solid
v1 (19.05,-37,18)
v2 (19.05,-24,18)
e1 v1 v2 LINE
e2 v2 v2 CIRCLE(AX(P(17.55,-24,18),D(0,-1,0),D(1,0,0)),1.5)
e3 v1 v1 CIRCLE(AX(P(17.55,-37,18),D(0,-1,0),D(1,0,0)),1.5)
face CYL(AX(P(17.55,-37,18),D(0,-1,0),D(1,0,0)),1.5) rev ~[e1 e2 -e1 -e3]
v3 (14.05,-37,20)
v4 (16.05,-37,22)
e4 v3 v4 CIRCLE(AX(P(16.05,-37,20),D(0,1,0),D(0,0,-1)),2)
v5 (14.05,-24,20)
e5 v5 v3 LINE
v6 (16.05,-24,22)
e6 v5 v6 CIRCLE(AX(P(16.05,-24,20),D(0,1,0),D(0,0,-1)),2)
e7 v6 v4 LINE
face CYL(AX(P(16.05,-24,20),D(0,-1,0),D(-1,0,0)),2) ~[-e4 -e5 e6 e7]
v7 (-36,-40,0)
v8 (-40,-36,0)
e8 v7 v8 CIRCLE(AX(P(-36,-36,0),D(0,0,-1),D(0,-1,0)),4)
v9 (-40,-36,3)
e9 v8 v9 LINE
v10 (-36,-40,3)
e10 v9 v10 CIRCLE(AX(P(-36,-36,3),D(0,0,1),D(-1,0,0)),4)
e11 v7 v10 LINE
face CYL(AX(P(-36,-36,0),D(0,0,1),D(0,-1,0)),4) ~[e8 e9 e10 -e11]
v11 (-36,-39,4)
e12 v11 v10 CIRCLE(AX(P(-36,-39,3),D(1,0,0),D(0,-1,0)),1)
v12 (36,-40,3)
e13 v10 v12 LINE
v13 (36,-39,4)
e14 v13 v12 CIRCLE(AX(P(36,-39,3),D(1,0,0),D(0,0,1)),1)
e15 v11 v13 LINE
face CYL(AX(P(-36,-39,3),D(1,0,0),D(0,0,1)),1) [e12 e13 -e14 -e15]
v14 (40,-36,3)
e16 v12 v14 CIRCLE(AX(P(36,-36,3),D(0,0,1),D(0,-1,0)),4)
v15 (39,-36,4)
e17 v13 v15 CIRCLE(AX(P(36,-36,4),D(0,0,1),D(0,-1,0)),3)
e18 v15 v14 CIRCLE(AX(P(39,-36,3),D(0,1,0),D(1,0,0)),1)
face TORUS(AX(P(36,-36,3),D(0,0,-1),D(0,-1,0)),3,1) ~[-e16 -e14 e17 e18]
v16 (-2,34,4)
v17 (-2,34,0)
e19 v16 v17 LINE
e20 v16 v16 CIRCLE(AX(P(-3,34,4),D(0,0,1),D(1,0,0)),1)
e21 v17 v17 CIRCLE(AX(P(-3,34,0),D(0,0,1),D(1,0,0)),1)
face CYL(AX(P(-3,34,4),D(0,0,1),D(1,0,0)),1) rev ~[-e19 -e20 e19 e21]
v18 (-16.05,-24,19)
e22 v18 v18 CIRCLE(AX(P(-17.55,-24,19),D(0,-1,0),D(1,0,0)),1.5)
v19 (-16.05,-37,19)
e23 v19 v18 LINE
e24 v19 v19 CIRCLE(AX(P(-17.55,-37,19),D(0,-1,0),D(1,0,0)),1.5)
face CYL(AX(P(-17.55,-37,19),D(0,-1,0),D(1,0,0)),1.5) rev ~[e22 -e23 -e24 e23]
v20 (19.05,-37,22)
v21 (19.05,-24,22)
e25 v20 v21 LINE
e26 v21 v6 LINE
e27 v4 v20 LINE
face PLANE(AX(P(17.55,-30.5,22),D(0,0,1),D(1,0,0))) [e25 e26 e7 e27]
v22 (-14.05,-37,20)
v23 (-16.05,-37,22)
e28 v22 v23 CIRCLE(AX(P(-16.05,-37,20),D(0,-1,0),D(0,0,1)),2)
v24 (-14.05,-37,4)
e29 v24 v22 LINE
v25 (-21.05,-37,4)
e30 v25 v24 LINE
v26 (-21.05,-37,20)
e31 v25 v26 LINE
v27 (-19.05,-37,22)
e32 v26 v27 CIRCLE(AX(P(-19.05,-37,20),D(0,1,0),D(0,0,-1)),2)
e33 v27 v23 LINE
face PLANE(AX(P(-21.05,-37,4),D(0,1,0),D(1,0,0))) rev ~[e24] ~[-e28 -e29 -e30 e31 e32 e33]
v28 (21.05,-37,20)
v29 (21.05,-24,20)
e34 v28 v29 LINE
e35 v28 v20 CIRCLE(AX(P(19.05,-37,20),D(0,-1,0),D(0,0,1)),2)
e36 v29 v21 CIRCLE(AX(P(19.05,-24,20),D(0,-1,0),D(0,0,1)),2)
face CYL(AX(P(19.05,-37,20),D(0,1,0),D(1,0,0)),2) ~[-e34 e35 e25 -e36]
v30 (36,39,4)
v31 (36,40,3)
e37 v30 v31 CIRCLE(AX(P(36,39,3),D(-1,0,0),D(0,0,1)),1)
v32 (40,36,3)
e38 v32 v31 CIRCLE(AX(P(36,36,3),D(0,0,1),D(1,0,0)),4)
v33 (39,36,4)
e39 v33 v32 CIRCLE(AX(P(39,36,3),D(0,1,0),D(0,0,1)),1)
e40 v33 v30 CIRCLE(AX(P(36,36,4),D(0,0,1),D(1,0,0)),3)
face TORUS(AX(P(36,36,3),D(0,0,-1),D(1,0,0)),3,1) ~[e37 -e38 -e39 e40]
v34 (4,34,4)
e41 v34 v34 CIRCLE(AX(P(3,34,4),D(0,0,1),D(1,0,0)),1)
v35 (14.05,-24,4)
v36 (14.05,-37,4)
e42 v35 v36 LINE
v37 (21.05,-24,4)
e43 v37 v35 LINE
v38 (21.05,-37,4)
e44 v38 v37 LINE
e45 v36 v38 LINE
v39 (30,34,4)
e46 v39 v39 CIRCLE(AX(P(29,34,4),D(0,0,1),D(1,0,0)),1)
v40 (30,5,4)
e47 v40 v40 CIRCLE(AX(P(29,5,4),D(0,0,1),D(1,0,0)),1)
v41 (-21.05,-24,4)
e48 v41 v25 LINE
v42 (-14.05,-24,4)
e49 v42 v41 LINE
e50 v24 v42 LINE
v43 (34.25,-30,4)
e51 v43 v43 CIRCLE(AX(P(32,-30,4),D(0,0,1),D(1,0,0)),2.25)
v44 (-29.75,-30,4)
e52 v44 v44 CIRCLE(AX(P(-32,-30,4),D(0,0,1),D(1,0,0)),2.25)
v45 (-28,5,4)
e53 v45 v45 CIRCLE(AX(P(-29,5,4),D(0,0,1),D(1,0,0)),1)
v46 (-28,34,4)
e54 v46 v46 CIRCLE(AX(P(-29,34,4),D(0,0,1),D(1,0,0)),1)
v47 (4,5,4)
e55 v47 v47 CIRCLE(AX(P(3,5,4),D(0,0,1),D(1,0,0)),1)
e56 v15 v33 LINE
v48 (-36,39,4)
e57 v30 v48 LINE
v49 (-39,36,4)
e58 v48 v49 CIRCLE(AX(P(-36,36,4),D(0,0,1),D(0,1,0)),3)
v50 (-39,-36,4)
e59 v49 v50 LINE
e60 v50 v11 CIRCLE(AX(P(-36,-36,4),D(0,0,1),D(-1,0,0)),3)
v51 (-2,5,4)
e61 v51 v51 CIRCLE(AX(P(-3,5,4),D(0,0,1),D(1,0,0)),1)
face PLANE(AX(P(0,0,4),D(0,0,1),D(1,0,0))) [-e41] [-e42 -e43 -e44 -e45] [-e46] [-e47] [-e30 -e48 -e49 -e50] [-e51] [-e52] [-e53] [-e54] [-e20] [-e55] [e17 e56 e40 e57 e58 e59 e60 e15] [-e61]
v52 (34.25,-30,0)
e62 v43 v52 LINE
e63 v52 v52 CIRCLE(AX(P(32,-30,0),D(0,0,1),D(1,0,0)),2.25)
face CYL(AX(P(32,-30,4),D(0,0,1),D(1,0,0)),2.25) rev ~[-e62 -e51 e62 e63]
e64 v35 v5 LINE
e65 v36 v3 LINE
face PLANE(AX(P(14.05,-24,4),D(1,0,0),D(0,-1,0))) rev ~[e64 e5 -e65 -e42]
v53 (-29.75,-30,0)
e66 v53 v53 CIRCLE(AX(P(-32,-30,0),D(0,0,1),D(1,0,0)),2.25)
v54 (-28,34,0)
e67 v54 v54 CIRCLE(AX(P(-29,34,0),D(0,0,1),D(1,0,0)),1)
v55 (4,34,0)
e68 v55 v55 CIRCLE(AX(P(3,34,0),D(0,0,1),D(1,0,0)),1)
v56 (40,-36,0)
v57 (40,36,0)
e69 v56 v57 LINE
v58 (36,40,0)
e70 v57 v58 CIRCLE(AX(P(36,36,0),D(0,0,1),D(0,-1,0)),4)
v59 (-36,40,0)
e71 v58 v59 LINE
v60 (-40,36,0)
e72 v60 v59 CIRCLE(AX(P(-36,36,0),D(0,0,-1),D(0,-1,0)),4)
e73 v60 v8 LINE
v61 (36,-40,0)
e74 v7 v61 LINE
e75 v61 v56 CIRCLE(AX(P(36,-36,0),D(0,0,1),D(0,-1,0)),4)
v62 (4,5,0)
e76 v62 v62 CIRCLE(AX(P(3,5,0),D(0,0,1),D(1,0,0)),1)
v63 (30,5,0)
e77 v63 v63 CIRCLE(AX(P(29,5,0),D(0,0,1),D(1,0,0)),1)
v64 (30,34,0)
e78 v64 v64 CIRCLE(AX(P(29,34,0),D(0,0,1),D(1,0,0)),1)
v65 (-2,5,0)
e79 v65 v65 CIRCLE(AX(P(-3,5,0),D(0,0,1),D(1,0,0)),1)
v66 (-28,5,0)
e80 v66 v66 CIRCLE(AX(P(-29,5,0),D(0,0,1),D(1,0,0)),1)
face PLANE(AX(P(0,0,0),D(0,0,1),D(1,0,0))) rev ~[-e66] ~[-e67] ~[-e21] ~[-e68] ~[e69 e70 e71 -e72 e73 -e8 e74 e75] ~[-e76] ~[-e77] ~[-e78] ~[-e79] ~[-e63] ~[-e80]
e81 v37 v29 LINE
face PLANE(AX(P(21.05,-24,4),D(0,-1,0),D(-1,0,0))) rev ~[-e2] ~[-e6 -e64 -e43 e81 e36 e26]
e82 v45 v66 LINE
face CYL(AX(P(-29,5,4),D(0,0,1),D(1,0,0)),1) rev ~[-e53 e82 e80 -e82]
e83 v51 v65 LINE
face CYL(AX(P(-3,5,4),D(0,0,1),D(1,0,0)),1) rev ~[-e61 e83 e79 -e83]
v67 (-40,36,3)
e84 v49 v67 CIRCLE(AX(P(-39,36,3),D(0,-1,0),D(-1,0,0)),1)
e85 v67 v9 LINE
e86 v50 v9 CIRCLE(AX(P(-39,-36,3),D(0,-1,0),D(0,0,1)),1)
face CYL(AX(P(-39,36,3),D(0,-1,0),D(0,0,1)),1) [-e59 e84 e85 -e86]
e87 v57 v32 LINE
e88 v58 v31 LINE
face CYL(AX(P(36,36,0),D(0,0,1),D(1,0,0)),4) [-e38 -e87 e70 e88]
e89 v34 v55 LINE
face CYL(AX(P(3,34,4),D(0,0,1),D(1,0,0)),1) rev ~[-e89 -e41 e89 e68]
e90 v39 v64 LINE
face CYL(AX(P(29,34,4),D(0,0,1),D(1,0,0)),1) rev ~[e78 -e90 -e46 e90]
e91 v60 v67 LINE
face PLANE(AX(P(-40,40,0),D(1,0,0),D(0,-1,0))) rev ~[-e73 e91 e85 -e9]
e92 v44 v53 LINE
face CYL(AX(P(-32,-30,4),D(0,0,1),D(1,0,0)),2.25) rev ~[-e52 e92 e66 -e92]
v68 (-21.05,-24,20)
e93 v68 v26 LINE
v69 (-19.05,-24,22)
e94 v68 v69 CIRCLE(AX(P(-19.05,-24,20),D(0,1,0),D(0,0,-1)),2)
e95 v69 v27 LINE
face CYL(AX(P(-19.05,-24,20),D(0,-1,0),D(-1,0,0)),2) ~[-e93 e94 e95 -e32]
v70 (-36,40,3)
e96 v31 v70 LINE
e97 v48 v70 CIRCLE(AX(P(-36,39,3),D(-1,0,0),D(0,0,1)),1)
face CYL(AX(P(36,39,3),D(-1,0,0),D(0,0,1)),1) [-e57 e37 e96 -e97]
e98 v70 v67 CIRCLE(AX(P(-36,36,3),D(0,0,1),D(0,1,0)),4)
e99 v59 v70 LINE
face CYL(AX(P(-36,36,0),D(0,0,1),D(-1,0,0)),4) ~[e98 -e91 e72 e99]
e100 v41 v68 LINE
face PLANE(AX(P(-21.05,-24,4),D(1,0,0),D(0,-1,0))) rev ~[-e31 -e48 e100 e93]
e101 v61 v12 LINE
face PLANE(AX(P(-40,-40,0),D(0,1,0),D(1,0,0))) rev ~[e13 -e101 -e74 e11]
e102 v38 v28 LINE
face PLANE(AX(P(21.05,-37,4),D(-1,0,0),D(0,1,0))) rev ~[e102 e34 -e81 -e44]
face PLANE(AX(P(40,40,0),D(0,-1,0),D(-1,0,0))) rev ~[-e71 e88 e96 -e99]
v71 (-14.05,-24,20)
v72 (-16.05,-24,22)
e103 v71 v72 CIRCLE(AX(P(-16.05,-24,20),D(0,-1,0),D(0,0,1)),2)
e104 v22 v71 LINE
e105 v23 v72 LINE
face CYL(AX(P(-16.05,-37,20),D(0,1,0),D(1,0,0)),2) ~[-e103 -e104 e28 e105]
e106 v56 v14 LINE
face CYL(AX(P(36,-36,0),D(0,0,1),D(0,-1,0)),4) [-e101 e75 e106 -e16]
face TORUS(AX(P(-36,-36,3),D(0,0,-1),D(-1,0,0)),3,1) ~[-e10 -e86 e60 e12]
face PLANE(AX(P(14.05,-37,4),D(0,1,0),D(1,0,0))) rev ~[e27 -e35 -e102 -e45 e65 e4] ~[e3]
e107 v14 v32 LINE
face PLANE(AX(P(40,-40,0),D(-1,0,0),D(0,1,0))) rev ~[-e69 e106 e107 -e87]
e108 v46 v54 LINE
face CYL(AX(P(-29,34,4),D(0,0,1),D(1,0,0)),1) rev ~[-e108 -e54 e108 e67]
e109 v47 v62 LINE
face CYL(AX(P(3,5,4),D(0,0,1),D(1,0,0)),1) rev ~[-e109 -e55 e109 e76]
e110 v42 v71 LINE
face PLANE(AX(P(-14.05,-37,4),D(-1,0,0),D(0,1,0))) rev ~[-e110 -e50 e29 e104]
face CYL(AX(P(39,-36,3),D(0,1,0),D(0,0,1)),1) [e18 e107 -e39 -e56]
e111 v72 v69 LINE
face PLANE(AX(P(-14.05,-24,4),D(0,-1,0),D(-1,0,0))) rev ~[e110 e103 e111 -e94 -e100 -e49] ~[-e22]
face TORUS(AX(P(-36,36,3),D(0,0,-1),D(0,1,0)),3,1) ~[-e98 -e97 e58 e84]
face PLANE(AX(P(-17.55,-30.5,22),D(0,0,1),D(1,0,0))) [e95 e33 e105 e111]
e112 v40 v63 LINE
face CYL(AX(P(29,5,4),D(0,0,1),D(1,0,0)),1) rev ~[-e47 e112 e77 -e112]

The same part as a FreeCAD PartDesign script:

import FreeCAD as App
import Part
import Sketcher
Q = App.Units.Quantity


def edges_at(feature, points):
    """Names of the edges that pass closest to the given points."""
    edges = feature.Shape.Edges
    near = lambda p: min(range(len(edges)), key=lambda i: edges[i].distToShape(Part.Vertex(*p))[0])
    return sorted({f"Edge{near(p) + 1}" for p in points})

doc = App.newDocument("Part")
body = doc.addObject("PartDesign::Body", "Body")

# Sketch on XY plane
sketch1 = body.newObject("Sketcher::SketchObject", "Sketch")
sketch1.AttachmentSupport = (doc.getObject("XY_Plane"), [""])
sketch1.MapMode = "FlatFace"
sketch1.addGeometry([
    Part.LineSegment(App.Vector(-40, 40, 0), App.Vector(-40, -40, 0)),
    Part.LineSegment(App.Vector(-40, -40, 0), App.Vector(40, -40, 0)),
    Part.LineSegment(App.Vector(40, -40, 0), App.Vector(40, 40, 0)),
    Part.LineSegment(App.Vector(40, 40, 0), App.Vector(-40, 40, 0)),
], False)
sketch1.addConstraint([
    Sketcher.Constraint("Coincident", 0, 2, 1, 1),
    Sketcher.Constraint("Coincident", 1, 2, 2, 1),
    Sketcher.Constraint("Coincident", 2, 2, 3, 1),
    Sketcher.Constraint("Coincident", 3, 2, 0, 1),
    Sketcher.Constraint("Vertical", 0),
    Sketcher.Constraint("Horizontal", 1),
    Sketcher.Constraint("Vertical", 2),
    Sketcher.Constraint("Horizontal", 3),
    Sketcher.Constraint("Symmetric", 0, 2, 2, 2, -1, 1),
    Sketcher.Constraint("Equal", 3, 0),
    Sketcher.Constraint("DistanceX", 1, 1, 1, 2, Q("80 mm")),
])
pad1 = body.newObject("PartDesign::Pad", "Pad")
pad1.Profile = sketch1
pad1.Length = 4

# Sketch on XY plane
sketch2 = body.newObject("Sketcher::SketchObject", "Sketch001")
sketch2.AttachmentSupport = (doc.getObject("XY_Plane"), [""])
sketch2.MapMode = "FlatFace"
sketch2.AttachmentOffset = App.Placement(App.Vector(0, 0, 4), App.Rotation())
sketch2.addGeometry([
    Part.LineSegment(App.Vector(-21, -37, 0), App.Vector(-14, -37, 0)),  # 0
    Part.LineSegment(App.Vector(-14, -37, 0), App.Vector(-14, -24, 0)),  # 1
    Part.LineSegment(App.Vector(-14, -24, 0), App.Vector(-21, -24, 0)),  # 2
    Part.LineSegment(App.Vector(-21, -24, 0), App.Vector(-21, -37, 0)),  # 3
    Part.LineSegment(App.Vector(21, -24, 0), App.Vector(14, -24, 0)),  # 4
    Part.LineSegment(App.Vector(14, -24, 0), App.Vector(14, -37, 0)),  # 5
    Part.LineSegment(App.Vector(14, -37, 0), App.Vector(21, -37, 0)),  # 6
    Part.LineSegment(App.Vector(21, -37, 0), App.Vector(21, -24, 0)),  # 7
], False)
sketch2.addConstraint([
    Sketcher.Constraint("Coincident", 0, 2, 1, 1),
    Sketcher.Constraint("Coincident", 1, 2, 2, 1),
    Sketcher.Constraint("Coincident", 2, 2, 3, 1),
    Sketcher.Constraint("Coincident", 3, 2, 0, 1),
    Sketcher.Constraint("Coincident", 4, 2, 5, 1),
    Sketcher.Constraint("Coincident", 5, 2, 6, 1),
    Sketcher.Constraint("Coincident", 6, 2, 7, 1),
    Sketcher.Constraint("Coincident", 7, 2, 4, 1),
    Sketcher.Constraint("Horizontal", 0),
    Sketcher.Constraint("Vertical", 1),
    Sketcher.Constraint("Horizontal", 2),
    Sketcher.Constraint("Vertical", 3),
    Sketcher.Constraint("Horizontal", 4),
    Sketcher.Constraint("Vertical", 5),
    Sketcher.Constraint("Horizontal", 6),
    Sketcher.Constraint("Vertical", 7),
    Sketcher.Constraint("Symmetric", 1, 2, 4, 2, -2),
    Sketcher.Constraint("Symmetric", 3, 2, 6, 2, -2),
    Sketcher.Constraint("DistanceX", 0, 1, 0, 2, Q("7 mm")),
    Sketcher.Constraint("DistanceY", 1, 1, 1, 2, Q("13 mm")),
    Sketcher.Constraint("DistanceY", 0, 2, -1, 1, Q("37 mm")),
    Sketcher.Constraint("DistanceX", 1, 2, 4, 2, Q("28.1 mm")),
])
pad2 = body.newObject("PartDesign::Pad", "Pad001")
pad2.Profile = sketch2
pad2.Length = 18

# Sketch on XZ plane
sketch3 = body.newObject("Sketcher::SketchObject", "Sketch002")
sketch3.AttachmentSupport = (doc.getObject("XZ_Plane"), [""])
sketch3.MapMode = "FlatFace"
sketch3.AttachmentOffset = App.Placement(App.Vector(0, 0, 37), App.Rotation())
sketch3.addGeometry(Part.Circle(App.Vector(-17.6, 19, 0), App.Vector(0, 0, 1), 1.5), False)
sketch3.addConstraint([
    Sketcher.Constraint("Diameter", 0, Q("3 mm")),
    Sketcher.Constraint("DistanceY", -1, 1, 0, 3, Q("19 mm")),
    Sketcher.Constraint("DistanceX", 0, 3, -1, 1, Q("17.55 mm")),
])
pocket1 = body.newObject("PartDesign::Pocket", "Pocket")
pocket1.Profile = sketch3
pocket1.Length = 38.6

# Sketch on XZ plane
sketch4 = body.newObject("Sketcher::SketchObject", "Sketch003")
sketch4.AttachmentSupport = (doc.getObject("XZ_Plane"), [""])
sketch4.MapMode = "FlatFace"
sketch4.AttachmentOffset = App.Placement(App.Vector(0, 0, 37), App.Rotation())
sketch4.addGeometry(Part.Circle(App.Vector(17.6, 18, 0), App.Vector(0, 0, 1), 1.5), False)
sketch4.addConstraint([
    Sketcher.Constraint("Diameter", 0, Q("3 mm")),
    Sketcher.Constraint("DistanceY", -1, 1, 0, 3, Q("18 mm")),
    Sketcher.Constraint("DistanceX", -1, 1, 0, 3, Q("17.55 mm")),
])
pocket2 = body.newObject("PartDesign::Pocket", "Pocket001")
pocket2.Profile = sketch4
pocket2.Length = 51.3
doc.recompute()

fillet = body.newObject("PartDesign::Fillet", "Fillet")
fillet.Base = (pocket2, edges_at(pocket2, [
    (-21.05, -30.5, 22),
    (-14.05, -30.5, 22),
    (14.05, -30.5, 22),
    (21.05, -30.5, 22),
]))
fillet.Radius = 2

# Sketch on XY plane
sketch5 = body.newObject("Sketcher::SketchObject", "Sketch004")
sketch5.AttachmentSupport = (doc.getObject("XY_Plane"), [""])
sketch5.MapMode = "FlatFace"
sketch5.AttachmentOffset = App.Placement(App.Vector(0, 0, 4), App.Rotation())
sketch5.addGeometry([
    Part.Circle(App.Vector(32, -30, 0), App.Vector(0, 0, 1), 2.2),  # 0
    Part.Circle(App.Vector(29, 5, 0), App.Vector(0, 0, 1), 1),  # 1
    Part.Circle(App.Vector(29, 34, 0), App.Vector(0, 0, 1), 1),  # 2
    Part.Circle(App.Vector(3, 5, 0), App.Vector(0, 0, 1), 1),  # 3
    Part.Circle(App.Vector(-3, 5, 0), App.Vector(0, 0, 1), 1),  # 4
    Part.Circle(App.Vector(3, 34, 0), App.Vector(0, 0, 1), 1),  # 5
    Part.Circle(App.Vector(-3, 34, 0), App.Vector(0, 0, 1), 1),  # 6
    Part.Circle(App.Vector(-29, 34, 0), App.Vector(0, 0, 1), 1),  # 7
    Part.Circle(App.Vector(-29, 5, 0), App.Vector(0, 0, 1), 1),  # 8
    Part.Circle(App.Vector(-32, -30, 0), App.Vector(0, 0, 1), 2.2),  # 9
], False)
sketch5.addConstraint([
    Sketcher.Constraint("Equal", 1, 2),
    Sketcher.Constraint("Equal", 2, 3),
    Sketcher.Constraint("Equal", 3, 4),
    Sketcher.Constraint("Equal", 4, 5),
    Sketcher.Constraint("Equal", 5, 6),
    Sketcher.Constraint("Equal", 6, 7),
    Sketcher.Constraint("Equal", 7, 8),
    Sketcher.Constraint("Equal", 0, 9),
    Sketcher.Constraint("Symmetric", 3, 3, 4, 3, -2),
    Sketcher.Constraint("Symmetric", 5, 3, 6, 3, -2),
    Sketcher.Constraint("Symmetric", 2, 3, 7, 3, -2),
    Sketcher.Constraint("Symmetric", 1, 3, 8, 3, -2),
    Sketcher.Constraint("Symmetric", 0, 3, 9, 3, -2),
    Sketcher.Constraint("Horizontal", 1, 3, 3, 3),
    Sketcher.Constraint("Horizontal", 2, 3, 5, 3),
    Sketcher.Constraint("Vertical", 1, 3, 2, 3),
    Sketcher.Constraint("Vertical", 3, 3, 5, 3),
    Sketcher.Constraint("Diameter", 1, Q("2 mm")),
    Sketcher.Constraint("Diameter", 0, Q("4.5 mm")),
    Sketcher.Constraint("DistanceX", -1, 1, 0, 3, Q("32 mm")),
    Sketcher.Constraint("DistanceY", 0, 3, -1, 1, Q("30 mm")),
    Sketcher.Constraint("DistanceX", -1, 1, 1, 3, Q("29 mm")),
    Sketcher.Constraint("DistanceY", -1, 1, 1, 3, Q("5 mm")),
    Sketcher.Constraint("DistanceY", -1, 1, 2, 3, Q("34 mm")),
    Sketcher.Constraint("DistanceX", -1, 1, 3, 3, Q("3 mm")),
])
pocket3 = body.newObject("PartDesign::Pocket", "Pocket002")
pocket3.Profile = sketch5
pocket3.Length = 112.1
doc.recompute()

fillet2 = body.newObject("PartDesign::Fillet", "Fillet001")
fillet2.Base = (pocket3, edges_at(pocket3, [
    (-40, 40, 2),
    (-40, -40, 2),
    (40, -40, 2),
    (40, 40, 2),
]))
fillet2.Radius = 4
doc.recompute()

fillet3 = body.newObject("PartDesign::Fillet", "Fillet002")
fillet3.Base = (fillet2, edges_at(fillet2, [
    (0, 40, 4),
    (-38.828, 38.828, 4),
    (-40, 0, 4),
    (-38.828, -38.828, 4),
    (0, -40, 4),
    (38.828, -38.828, 4),
    (40, 0, 4),
    (38.828, 38.828, 4),
]))
fillet3.Radius = 1

doc.recompute()
